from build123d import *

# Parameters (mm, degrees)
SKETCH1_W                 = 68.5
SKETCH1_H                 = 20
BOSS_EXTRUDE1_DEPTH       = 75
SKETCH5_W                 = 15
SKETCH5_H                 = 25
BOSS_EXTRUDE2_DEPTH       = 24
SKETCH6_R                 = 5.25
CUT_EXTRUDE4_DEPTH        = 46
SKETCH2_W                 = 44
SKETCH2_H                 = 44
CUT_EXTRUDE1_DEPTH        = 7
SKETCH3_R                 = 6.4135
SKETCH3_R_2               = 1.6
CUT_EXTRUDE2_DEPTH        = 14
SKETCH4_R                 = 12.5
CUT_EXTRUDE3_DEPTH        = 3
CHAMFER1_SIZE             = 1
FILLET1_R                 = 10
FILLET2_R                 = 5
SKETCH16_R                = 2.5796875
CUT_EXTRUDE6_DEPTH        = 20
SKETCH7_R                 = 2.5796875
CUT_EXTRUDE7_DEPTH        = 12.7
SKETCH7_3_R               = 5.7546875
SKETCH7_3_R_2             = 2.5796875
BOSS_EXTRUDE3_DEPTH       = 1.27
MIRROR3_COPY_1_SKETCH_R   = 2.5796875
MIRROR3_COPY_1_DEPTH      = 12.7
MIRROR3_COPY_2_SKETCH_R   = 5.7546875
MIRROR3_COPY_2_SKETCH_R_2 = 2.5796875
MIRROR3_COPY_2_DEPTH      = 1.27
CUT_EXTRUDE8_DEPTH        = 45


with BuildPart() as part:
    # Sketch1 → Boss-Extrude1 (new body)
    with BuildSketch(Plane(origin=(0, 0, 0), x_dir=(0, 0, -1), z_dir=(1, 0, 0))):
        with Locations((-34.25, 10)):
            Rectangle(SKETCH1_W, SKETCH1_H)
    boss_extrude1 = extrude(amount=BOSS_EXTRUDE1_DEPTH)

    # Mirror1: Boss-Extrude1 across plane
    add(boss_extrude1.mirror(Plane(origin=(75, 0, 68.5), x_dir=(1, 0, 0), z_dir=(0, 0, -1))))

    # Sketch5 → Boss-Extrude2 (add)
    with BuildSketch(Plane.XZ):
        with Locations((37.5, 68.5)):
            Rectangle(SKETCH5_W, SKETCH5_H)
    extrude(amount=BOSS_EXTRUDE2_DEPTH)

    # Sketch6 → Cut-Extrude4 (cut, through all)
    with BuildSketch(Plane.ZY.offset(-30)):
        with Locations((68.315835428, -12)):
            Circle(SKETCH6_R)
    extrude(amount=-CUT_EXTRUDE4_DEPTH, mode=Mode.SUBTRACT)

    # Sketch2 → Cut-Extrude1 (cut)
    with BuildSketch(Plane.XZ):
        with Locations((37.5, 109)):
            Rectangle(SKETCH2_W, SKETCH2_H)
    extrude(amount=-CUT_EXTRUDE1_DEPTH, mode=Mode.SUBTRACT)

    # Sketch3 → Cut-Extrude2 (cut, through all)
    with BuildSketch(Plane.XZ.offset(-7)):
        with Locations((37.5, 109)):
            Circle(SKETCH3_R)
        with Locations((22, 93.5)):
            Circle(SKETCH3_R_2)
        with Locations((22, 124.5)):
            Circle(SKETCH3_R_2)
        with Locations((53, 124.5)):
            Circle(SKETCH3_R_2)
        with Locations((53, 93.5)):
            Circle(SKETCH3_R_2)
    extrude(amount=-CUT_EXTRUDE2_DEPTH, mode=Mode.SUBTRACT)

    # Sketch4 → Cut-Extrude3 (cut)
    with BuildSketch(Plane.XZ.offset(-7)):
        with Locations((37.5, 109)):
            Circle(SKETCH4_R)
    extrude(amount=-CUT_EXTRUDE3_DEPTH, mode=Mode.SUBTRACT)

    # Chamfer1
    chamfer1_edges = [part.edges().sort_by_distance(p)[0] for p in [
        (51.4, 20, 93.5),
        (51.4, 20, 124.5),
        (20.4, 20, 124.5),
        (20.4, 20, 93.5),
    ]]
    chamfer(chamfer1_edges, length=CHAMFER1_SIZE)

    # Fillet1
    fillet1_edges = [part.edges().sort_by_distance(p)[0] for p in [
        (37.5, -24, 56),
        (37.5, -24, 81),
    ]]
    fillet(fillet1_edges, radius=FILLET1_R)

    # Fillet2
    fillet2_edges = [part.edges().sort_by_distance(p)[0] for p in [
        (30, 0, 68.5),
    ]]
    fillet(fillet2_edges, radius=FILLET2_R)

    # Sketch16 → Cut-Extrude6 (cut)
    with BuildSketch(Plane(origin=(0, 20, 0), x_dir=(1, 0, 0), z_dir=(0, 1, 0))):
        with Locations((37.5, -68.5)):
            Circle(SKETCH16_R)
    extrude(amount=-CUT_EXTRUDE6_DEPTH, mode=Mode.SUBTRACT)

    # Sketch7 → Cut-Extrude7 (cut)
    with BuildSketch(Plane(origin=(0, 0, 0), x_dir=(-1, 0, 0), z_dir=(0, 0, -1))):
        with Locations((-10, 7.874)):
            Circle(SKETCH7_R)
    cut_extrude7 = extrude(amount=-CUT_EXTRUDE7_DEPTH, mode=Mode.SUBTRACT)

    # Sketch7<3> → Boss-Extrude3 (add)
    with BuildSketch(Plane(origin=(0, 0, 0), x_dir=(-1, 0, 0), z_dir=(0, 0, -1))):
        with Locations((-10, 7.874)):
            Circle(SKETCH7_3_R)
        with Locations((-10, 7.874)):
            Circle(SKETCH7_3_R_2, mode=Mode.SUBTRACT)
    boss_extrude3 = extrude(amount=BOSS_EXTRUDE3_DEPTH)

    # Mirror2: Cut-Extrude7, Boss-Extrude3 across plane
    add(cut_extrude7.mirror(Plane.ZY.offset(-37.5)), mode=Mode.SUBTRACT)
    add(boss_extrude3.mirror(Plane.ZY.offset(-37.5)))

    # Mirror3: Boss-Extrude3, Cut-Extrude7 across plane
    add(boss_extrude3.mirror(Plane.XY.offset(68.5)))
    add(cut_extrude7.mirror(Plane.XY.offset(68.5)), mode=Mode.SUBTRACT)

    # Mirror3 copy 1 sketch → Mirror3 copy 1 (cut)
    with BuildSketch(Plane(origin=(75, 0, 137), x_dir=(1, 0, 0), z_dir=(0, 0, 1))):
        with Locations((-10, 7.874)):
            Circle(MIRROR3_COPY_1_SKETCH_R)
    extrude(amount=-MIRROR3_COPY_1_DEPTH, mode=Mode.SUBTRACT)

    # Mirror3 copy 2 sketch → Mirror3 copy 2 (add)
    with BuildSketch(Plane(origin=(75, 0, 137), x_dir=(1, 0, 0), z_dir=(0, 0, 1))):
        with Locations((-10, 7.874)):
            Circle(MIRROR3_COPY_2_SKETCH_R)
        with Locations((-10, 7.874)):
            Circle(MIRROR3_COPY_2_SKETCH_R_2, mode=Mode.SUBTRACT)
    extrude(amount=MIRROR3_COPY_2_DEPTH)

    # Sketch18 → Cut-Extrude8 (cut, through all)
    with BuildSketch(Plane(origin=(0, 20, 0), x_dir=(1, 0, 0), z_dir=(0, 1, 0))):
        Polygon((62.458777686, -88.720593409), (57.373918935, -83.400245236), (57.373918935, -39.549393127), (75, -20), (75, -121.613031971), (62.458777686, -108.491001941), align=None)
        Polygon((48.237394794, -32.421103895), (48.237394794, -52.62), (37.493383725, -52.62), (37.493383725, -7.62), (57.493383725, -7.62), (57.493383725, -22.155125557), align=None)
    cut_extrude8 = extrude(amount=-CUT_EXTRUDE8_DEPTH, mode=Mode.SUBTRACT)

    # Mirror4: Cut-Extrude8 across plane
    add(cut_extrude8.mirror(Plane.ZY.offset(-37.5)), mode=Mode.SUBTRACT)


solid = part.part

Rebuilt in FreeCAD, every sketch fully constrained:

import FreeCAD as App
import Part
import Sketcher


def edges_at(feature, points):
    """Names of the edges that pass closest to the given points."""
    edges = feature.Shape.Edges
    near = lambda p: min(range(len(edges)), key=lambda i: edges[i].distToShape(Part.Vertex(*p))[0])
    return sorted({f"Edge{near(p) + 1}" for p in points})

doc = App.newDocument("Part")
body = doc.addObject("PartDesign::Body", "Body")

# Sketch on YZ plane
sketch1 = body.newObject("Sketcher::SketchObject", "Sketch")
sketch1.AttachmentSupport = (doc.getObject("YZ_Plane"), [""])
sketch1.MapMode = "FlatFace"
sketch1.addGeometry(Part.LineSegment(App.Vector(20, 68, 0), App.Vector(0, 68, 0)), False)
sketch1.addGeometry(Part.LineSegment(App.Vector(0, 68, 0), App.Vector(0, 0, 0)), False)
sketch1.addGeometry(Part.LineSegment(App.Vector(0, 0, 0), App.Vector(20, 0, 0)), False)
sketch1.addGeometry(Part.LineSegment(App.Vector(20, 0, 0), App.Vector(20, 68, 0)), False)
sketch1.addConstraint(Sketcher.Constraint("Coincident", 0, 2, 1, 1))
sketch1.addConstraint(Sketcher.Constraint("Coincident", 1, 2, 2, 1))
sketch1.addConstraint(Sketcher.Constraint("Coincident", 2, 2, 3, 1))
sketch1.addConstraint(Sketcher.Constraint("Coincident", 3, 2, 0, 1))
sketch1.addConstraint(Sketcher.Constraint("Horizontal", 0))
sketch1.addConstraint(Sketcher.Constraint("Vertical", 1))
sketch1.addConstraint(Sketcher.Constraint("Horizontal", 2))
sketch1.addConstraint(Sketcher.Constraint("Vertical", 3))
sketch1.addConstraint(Sketcher.Constraint("Coincident", 1, 2, -1, 1))
sketch1.addConstraint(Sketcher.Constraint("DistanceX", 0, 2, 0, 1, 20.0))
sketch1.addConstraint(Sketcher.Constraint("DistanceY", 1, 2, 1, 1, 68.5))
pad1 = body.newObject("PartDesign::Pad", "Pad")
pad1.Profile = sketch1
pad1.Length = 75
doc.recompute()

datumplane = body.newObject("PartDesign::Plane", "DatumPlane")
datumplane.AttachmentSupport = (doc.getObject("XY_Plane"), [""])
datumplane.MapMode = "FlatFace"
datumplane.AttachmentOffset = App.Placement(App.Vector(0, 0, 68.5), App.Rotation())
mirrored = body.newObject("PartDesign::Mirrored", "Mirrored")
mirrored.Originals = [pad1]
mirrored.MirrorPlane = (datumplane, [""])
body.Tip = mirrored

# Sketch on XZ plane
sketch2 = body.newObject("Sketcher::SketchObject", "Sketch001")
sketch2.AttachmentSupport = (doc.getObject("XZ_Plane"), [""])
sketch2.MapMode = "FlatFace"
sketch2.addGeometry(Part.LineSegment(App.Vector(30, 81, 0), App.Vector(30, 56, 0)), False)
sketch2.addGeometry(Part.LineSegment(App.Vector(30, 56, 0), App.Vector(45, 56, 0)), False)
sketch2.addGeometry(Part.LineSegment(App.Vector(45, 56, 0), App.Vector(45, 81, 0)), False)
sketch2.addGeometry(Part.LineSegment(App.Vector(45, 81, 0), App.Vector(30, 81, 0)), False)
sketch2.addConstraint(Sketcher.Constraint("Coincident", 0, 2, 1, 1))
sketch2.addConstraint(Sketcher.Constraint("Coincident", 1, 2, 2, 1))
sketch2.addConstraint(Sketcher.Constraint("Coincident", 2, 2, 3, 1))
sketch2.addConstraint(Sketcher.Constraint("Coincident", 3, 2, 0, 1))
sketch2.addConstraint(Sketcher.Constraint("Vertical", 0))
sketch2.addConstraint(Sketcher.Constraint("Horizontal", 1))
sketch2.addConstraint(Sketcher.Constraint("Vertical", 2))
sketch2.addConstraint(Sketcher.Constraint("Horizontal", 3))
sketch2.addConstraint(Sketcher.Constraint("DistanceX", 1, 1, 1, 2, 15.0))
sketch2.addConstraint(Sketcher.Constraint("DistanceY", 0, 2, 0, 1, 25.0))
sketch2.addConstraint(Sketcher.Constraint("DistanceX", -1, 1, 0, 2, 30.0))
sketch2.addConstraint(Sketcher.Constraint("DistanceY", -1, 1, 0, 2, 56.0))
pad2 = body.newObject("PartDesign::Pad", "Pad001")
pad2.Profile = sketch2
pad2.Length = 24

# Sketch on YZ plane
sketch3 = body.newObject("Sketcher::SketchObject", "Sketch002")
sketch3.AttachmentSupport = (doc.getObject("YZ_Plane"), [""])
sketch3.MapMode = "FlatFace"
sketch3.AttachmentOffset = App.Placement(App.Vector(0, 0, 30), App.Rotation())
sketch3.addGeometry(Part.Circle(App.Vector(-12, 68, 0), App.Vector(0, 0, 1), 5), False)
sketch3.addConstraint(Sketcher.Constraint("Diameter", 0, 10.5))
sketch3.addConstraint(Sketcher.Constraint("DistanceX", 0, 3, -1, 1, 12.0))
sketch3.addConstraint(Sketcher.Constraint("DistanceY", -1, 1, 0, 3, 68.315835))
pocket1 = body.newObject("PartDesign::Pocket", "Pocket")
pocket1.Profile = sketch3
pocket1.Type = "ThroughAll"
pocket1.Reversed = True

# Sketch on XZ plane
sketch4 = body.newObject("Sketcher::SketchObject", "Sketch003")
sketch4.AttachmentSupport = (doc.getObject("XZ_Plane"), [""])
sketch4.MapMode = "FlatFace"
sketch4.addGeometry(Part.LineSegment(App.Vector(16, 131, 0), App.Vector(16, 87, 0)), False)
sketch4.addGeometry(Part.LineSegment(App.Vector(16, 87, 0), App.Vector(60, 87, 0)), False)
sketch4.addGeometry(Part.LineSegment(App.Vector(60, 87, 0), App.Vector(60, 131, 0)), False)
sketch4.addGeometry(Part.LineSegment(App.Vector(60, 131, 0), App.Vector(16, 131, 0)), False)
sketch4.addConstraint(Sketcher.Constraint("Coincident", 0, 2, 1, 1))
sketch4.addConstraint(Sketcher.Constraint("Coincident", 1, 2, 2, 1))
sketch4.addConstraint(Sketcher.Constraint("Coincident", 2, 2, 3, 1))
sketch4.addConstraint(Sketcher.Constraint("Coincident", 3, 2, 0, 1))
sketch4.addConstraint(Sketcher.Constraint("Vertical", 0))
sketch4.addConstraint(Sketcher.Constraint("Horizontal", 1))
sketch4.addConstraint(Sketcher.Constraint("Vertical", 2))
sketch4.addConstraint(Sketcher.Constraint("Horizontal", 3))
sketch4.addConstraint(Sketcher.Constraint("Equal", 3, 0))
sketch4.addConstraint(Sketcher.Constraint("DistanceX", 1, 1, 1, 2, 44.0))
sketch4.addConstraint(Sketcher.Constraint("DistanceY", -1, 1, 0, 2, 87.0))
sketch4.addConstraint(Sketcher.Constraint("DistanceX", -1, 1, 0, 2, 15.5))
pocket2 = body.newObject("PartDesign::Pocket", "Pocket001")
pocket2.Profile = sketch4
pocket2.Length = 7

# Sketch on XZ plane
sketch5 = body.newObject("Sketcher::SketchObject", "Sketch004")
sketch5.AttachmentSupport = (doc.getObject("XZ_Plane"), [""])
sketch5.MapMode = "FlatFace"
sketch5.AttachmentOffset = App.Placement(App.Vector(0, 0, -7), App.Rotation())
sketch5.addGeometry(Part.Circle(App.Vector(37.5, 109, 0), App.Vector(0, 0, 1), 6.4), False)
sketch5.addGeometry(Part.Circle(App.Vector(22, 93.5, 0), App.Vector(0, 0, 1), 1.6), False)
sketch5.addGeometry(Part.Circle(App.Vector(22, 124.5, 0), App.Vector(0, 0, 1), 1.6), False)
sketch5.addGeometry(Part.Circle(App.Vector(53, 124.5, 0), App.Vector(0, 0, 1), 1.6), False)
sketch5.addGeometry(Part.Circle(App.Vector(53, 93.5, 0), App.Vector(0, 0, 1), 1.6), False)
sketch5.addConstraint(Sketcher.Constraint("Equal", 1, 2))
sketch5.addConstraint(Sketcher.Constraint("Equal", 2, 3))
sketch5.addConstraint(Sketcher.Constraint("Equal", 3, 4))
sketch5.addConstraint(Sketcher.Constraint("Horizontal", 2, 3, 3, 3))
sketch5.addConstraint(Sketcher.Constraint("Horizontal", 1, 3, 4, 3))
sketch5.addConstraint(Sketcher.Constraint("Vertical", 1, 3, 2, 3))
sketch5.addConstraint(Sketcher.Constraint("Vertical", 3, 3, 4, 3))
sketch5.addConstraint(Sketcher.Constraint("Diameter", 1, 3.2))
sketch5.addConstraint(Sketcher.Constraint("Diameter", 0, 12.827))
sketch5.addConstraint(Sketcher.Constraint("DistanceY", -1, 1, 0, 3, 109.0))
sketch5.addConstraint(Sketcher.Constraint("DistanceX", -1, 1, 1, 3, 22.0))
sketch5.addConstraint(Sketcher.Constraint("DistanceX", -1, 1, 3, 3, 53.0))
sketch5.addConstraint(Sketcher.Constraint("DistanceY", 1, 3, 2, 3, 31.0))
sketch5.addConstraint(Sketcher.Constraint("DistanceX", -1, 1, 0, 3, 37.5))
sketch5.addConstraint(Sketcher.Constraint("DistanceY", -1, 1, 1, 3, 93.5))
pocket3 = body.newObject("PartDesign::Pocket", "Pocket002")
pocket3.Profile = sketch5
pocket3.Type = "ThroughAll"

# Sketch on XZ plane
sketch6 = body.newObject("Sketcher::SketchObject", "Sketch005")
sketch6.AttachmentSupport = (doc.getObject("XZ_Plane"), [""])
sketch6.MapMode = "FlatFace"
sketch6.AttachmentOffset = App.Placement(App.Vector(0, 0, -7), App.Rotation())
sketch6.addGeometry(Part.Circle(App.Vector(38, 109, 0), App.Vector(0, 0, 1), 12), False)
sketch6.addConstraint(Sketcher.Constraint("Diameter", 0, 25.0))
sketch6.addConstraint(Sketcher.Constraint("DistanceY", -1, 1, 0, 3, 109.0))
sketch6.addConstraint(Sketcher.Constraint("DistanceX", -1, 1, 0, 3, 37.5))
pocket4 = body.newObject("PartDesign::Pocket", "Pocket003")
pocket4.Profile = sketch6
pocket4.Length = 3
doc.recompute()

chamfer = body.newObject("PartDesign::Chamfer", "Chamfer")
chamfer.Base = (pocket4, edges_at(pocket4, [
    (51.4, 20, 93.5),
    (51.4, 20, 124.5),
    (20.4, 20, 124.5),
    (20.4, 20, 93.5),
]))
chamfer.Size = 1
doc.recompute()

fillet = body.newObject("PartDesign::Fillet", "Fillet")
fillet.Base = (chamfer, edges_at(chamfer, [(37.5, -24, 56), (37.5, -24, 81)]))
fillet.Radius = 10
doc.recompute()

fillet2 = body.newObject("PartDesign::Fillet", "Fillet001")
fillet2.Base = (fillet, edges_at(fillet, [(30, 0, 68.5)]))
fillet2.Radius = 5

# Sketch on XZ plane
sketch7 = body.newObject("Sketcher::SketchObject", "Sketch006")
sketch7.AttachmentSupport = (doc.getObject("XZ_Plane"), [""])
sketch7.MapMode = "FlatFace"
sketch7.AttachmentOffset = App.Placement(App.Vector(0, 0, -20), App.Rotation())
sketch7.addGeometry(Part.Circle(App.Vector(37.5, 68.5, 0), App.Vector(0, 0, 1), 2.6), False)
sketch7.addConstraint(Sketcher.Constraint("DistanceX", -1, 1, 0, 3, 37.5))
sketch7.addConstraint(Sketcher.Constraint("DistanceY", -1, 1, 0, 3, 68.5))
sketch7.addConstraint(Sketcher.Constraint("Diameter", 0, 5.159375))
pocket5 = body.newObject("PartDesign::Pocket", "Pocket004")
pocket5.Profile = sketch7
pocket5.Length = 20
pocket5.Reversed = True

# Sketch on XY plane
sketch8 = body.newObject("Sketcher::SketchObject", "Sketch007")
sketch8.AttachmentSupport = (doc.getObject("XY_Plane"), [""])
sketch8.MapMode = "FlatFace"
sketch8.addGeometry(Part.Circle(App.Vector(10, 7.9, 0), App.Vector(0, 0, 1), 2.6), False)
sketch8.addConstraint(Sketcher.Constraint("DistanceX", -1, 1, 0, 3, 10.0))
sketch8.addConstraint(Sketcher.Constraint("Diameter", 0, 5.159375))
sketch8.addConstraint(Sketcher.Constraint("DistanceY", -1, 1, 0, 3, 7.874))
pocket6 = body.newObject("PartDesign::Pocket", "Pocket005")
pocket6.Profile = sketch8
pocket6.Length = 12.7
pocket6.Reversed = True

# Sketch on XY plane
sketch9 = body.newObject("Sketcher::SketchObject", "Sketch008")
sketch9.AttachmentSupport = (doc.getObject("XY_Plane"), [""])
sketch9.MapMode = "FlatFace"
sketch9.addGeometry(Part.Circle(App.Vector(10, 7.9, 0), App.Vector(0, 0, 1), 5.8), False)
sketch9.addGeometry(Part.Circle(App.Vector(10, 7.9, 0), App.Vector(0, 0, 1), 2.6), False)
sketch9.addConstraint(Sketcher.Constraint("Coincident", 1, 3, 0, 3))
sketch9.addConstraint(Sketcher.Constraint("DistanceX", -1, 1, 0, 3, 10.0))
sketch9.addConstraint(Sketcher.Constraint("Diameter", 0, 11.509375))
sketch9.addConstraint(Sketcher.Constraint("Diameter", 1, 5.159375))
sketch9.addConstraint(Sketcher.Constraint("DistanceY", -1, 1, 0, 3, 7.874))
pad3 = body.newObject("PartDesign::Pad", "Pad002")
pad3.Profile = sketch9
pad3.Length = 1.27
pad3.Reversed = True
doc.recompute()

datumplane2 = body.newObject("PartDesign::Plane", "DatumPlane001")
datumplane2.AttachmentSupport = (doc.getObject("YZ_Plane"), [""])
datumplane2.MapMode = "FlatFace"
datumplane2.AttachmentOffset = App.Placement(App.Vector(0, 0, 37.5), App.Rotation())
mirrored2 = body.newObject("PartDesign::Mirrored", "Mirrored001")
mirrored2.Originals = [pocket6, pad3]
mirrored2.MirrorPlane = (datumplane2, [""])
body.Tip = mirrored2
doc.recompute()

datumplane3 = body.newObject("PartDesign::Plane", "DatumPlane002")
datumplane3.AttachmentSupport = (doc.getObject("XY_Plane"), [""])
datumplane3.MapMode = "FlatFace"
datumplane3.AttachmentOffset = App.Placement(App.Vector(0, 0, 68.5), App.Rotation())
mirrored3 = body.newObject("PartDesign::Mirrored", "Mirrored002")
mirrored3.Originals = [pad3, pocket6]
mirrored3.MirrorPlane = (datumplane3, [""])
body.Tip = mirrored3

# Sketch on XY plane
sketch10 = body.newObject("Sketcher::SketchObject", "Sketch009")
sketch10.AttachmentSupport = (doc.getObject("XY_Plane"), [""])
sketch10.MapMode = "FlatFace"
sketch10.AttachmentOffset = App.Placement(App.Vector(0, 0, 137), App.Rotation())
sketch10.addGeometry(Part.Circle(App.Vector(65, 7.9, 0), App.Vector(0, 0, 1), 2.6), False)
sketch10.addConstraint(Sketcher.Constraint("DistanceX", -1, 1, 0, 3, 65.0))
sketch10.addConstraint(Sketcher.Constraint("Diameter", 0, 5.159375))
sketch10.addConstraint(Sketcher.Constraint("DistanceY", -1, 1, 0, 3, 7.874))
pocket7 = body.newObject("PartDesign::Pocket", "Pocket006")
pocket7.Profile = sketch10
pocket7.Length = 12.7

# Sketch on XY plane
sketch11 = body.newObject("Sketcher::SketchObject", "Sketch010")
sketch11.AttachmentSupport = (doc.getObject("XY_Plane"), [""])
sketch11.MapMode = "FlatFace"
sketch11.AttachmentOffset = App.Placement(App.Vector(0, 0, 137), App.Rotation())
sketch11.addGeometry(Part.Circle(App.Vector(65, 7.9, 0), App.Vector(0, 0, 1), 5.8), False)
sketch11.addGeometry(Part.Circle(App.Vector(65, 7.9, 0), App.Vector(0, 0, 1), 2.6), False)
sketch11.addConstraint(Sketcher.Constraint("Coincident", 1, 3, 0, 3))
sketch11.addConstraint(Sketcher.Constraint("DistanceX", -1, 1, 0, 3, 65.0))
sketch11.addConstraint(Sketcher.Constraint("Diameter", 0, 11.509375))
sketch11.addConstraint(Sketcher.Constraint("Diameter", 1, 5.159375))
sketch11.addConstraint(Sketcher.Constraint("DistanceY", -1, 1, 0, 3, 7.874))
pad4 = body.newObject("PartDesign::Pad", "Pad003")
pad4.Profile = sketch11
pad4.Length = 1.27

# Sketch on XZ plane
sketch12 = body.newObject("Sketcher::SketchObject", "Sketch011")
sketch12.AttachmentSupport = (doc.getObject("XZ_Plane"), [""])
sketch12.MapMode = "FlatFace"
sketch12.AttachmentOffset = App.Placement(App.Vector(0, 0, -20), App.Rotation())
sketch12.addGeometry(Part.LineSegment(App.Vector(57, 83, 0), App.Vector(62, 89, 0)), False)
sketch12.addGeometry(Part.LineSegment(App.Vector(62, 89, 0), App.Vector(62, 108, 0)), False)
sketch12.addGeometry(Part.LineSegment(App.Vector(62, 108, 0), App.Vector(75, 122, 0)), False)
sketch12.addGeometry(Part.LineSegment(App.Vector(75, 122, 0), App.Vector(75, 20, 0)), False)
sketch12.addGeometry(Part.LineSegment(App.Vector(75, 20, 0), App.Vector(57, 40, 0)), False)
sketch12.addGeometry(Part.LineSegment(App.Vector(57, 40, 0), App.Vector(57, 83, 0)), False)
sketch12.addGeometry(Part.LineSegment(App.Vector(48, 53, 0), App.Vector(48, 32, 0)), False)
sketch12.addGeometry(Part.LineSegment(App.Vector(48, 32, 0), App.Vector(57, 22, 0)), False)
sketch12.addGeometry(Part.LineSegment(App.Vector(57, 22, 0), App.Vector(57, 8, 0)), False)
sketch12.addGeometry(Part.LineSegment(App.Vector(57, 8, 0), App.Vector(37, 8, 0)), False)
sketch12.addGeometry(Part.LineSegment(App.Vector(37, 8, 0), App.Vector(37, 53, 0)), False)
sketch12.addGeometry(Part.LineSegment(App.Vector(37, 53, 0), App.Vector(48, 53, 0)), False)
sketch12.addConstraint(Sketcher.Constraint("Coincident", 0, 2, 1, 1))
sketch12.addConstraint(Sketcher.Constraint("Coincident", 1, 2, 2, 1))
sketch12.addConstraint(Sketcher.Constraint("Coincident", 2, 2, 3, 1))
sketch12.addConstraint(Sketcher.Constraint("Coincident", 3, 2, 4, 1))
sketch12.addConstraint(Sketcher.Constraint("Coincident", 4, 2, 5, 1))
sketch12.addConstraint(Sketcher.Constraint("Coincident", 5, 2, 0, 1))
sketch12.addConstraint(Sketcher.Constraint("Coincident", 6, 2, 7, 1))
sketch12.addConstraint(Sketcher.Constraint("Coincident", 7, 2, 8, 1))
sketch12.addConstraint(Sketcher.Constraint("Coincident", 8, 2, 9, 1))
sketch12.addConstraint(Sketcher.Constraint("Coincident", 9, 2, 10, 1))
sketch12.addConstraint(Sketcher.Constraint("Coincident", 10, 2, 11, 1))
sketch12.addConstraint(Sketcher.Constraint("Coincident", 11, 2, 6, 1))
sketch12.addConstraint(Sketcher.Constraint("Vertical", 1))
sketch12.addConstraint(Sketcher.Constraint("Vertical", 3))
sketch12.addConstraint(Sketcher.Constraint("Vertical", 5))
sketch12.addConstraint(Sketcher.Constraint("Vertical", 6))
sketch12.addConstraint(Sketcher.Constraint("Vertical", 8))
sketch12.addConstraint(Sketcher.Constraint("Horizontal", 9))
sketch12.addConstraint(Sketcher.Constraint("Vertical", 10))
sketch12.addConstraint(Sketcher.Constraint("Horizontal", 11))
sketch12.addConstraint(Sketcher.Constraint("Parallel", 0, 2))
sketch12.addConstraint(Sketcher.Constraint("Parallel", 4, 7))
sketch12.addConstraint(Sketcher.Constraint("DistanceX", 9, 2, 9, 1, 20.0))
sketch12.addConstraint(Sketcher.Constraint("DistanceY", 10, 1, 10, 2, 45.0))
sketch12.addConstraint(Sketcher.Constraint("DistanceX", -1, 1, 2, 2, 75.0))
sketch12.addConstraint(Sketcher.Constraint("DistanceY", -1, 1, 3, 2, 20.0))
sketch12.addConstraint(Sketcher.Constraint("DistanceY", -1, 1, 8, 2, 7.62))
sketch12.addConstraint(Sketcher.Constraint("DistanceY", -1, 1, 1, 2, 108.491002))
sketch12.addConstraint(Sketcher.Constraint("DistanceX", 11, 1, 11, 2, 10.744011))
sketch12.addConstraint(Sketcher.Constraint("DistanceY", 1, 1, 1, 2, 19.770409))
sketch12.addConstraint(Sketcher.Constraint("DistanceY", 3, 2, 3, 1, 101.613032))
sketch12.addConstraint(Sketcher.Constraint("DistanceY", 4, 2, 0, 2, 49.1712))
sketch12.addConstraint(Sketcher.Constraint("DistanceY", 6, 2, 1, 2, 76.069898))
sketch12.addConstraint(Sketcher.Constraint("DistanceY", 5, 1, 5, 2, 43.850852))
sketch12.addConstraint(Sketcher.Constraint("DistanceY", 8, 2, 8, 1, 14.535126))
sketch12.addConstraint(Sketcher.Constraint("DistanceX", -1, 1, 6, 2, 48.237395))
pocket8 = body.newObject("PartDesign::Pocket", "Pocket007")
pocket8.Profile = sketch12
pocket8.Type = "ThroughAll"
pocket8.Reversed = True
doc.recompute()

datumplane4 = body.newObject("PartDesign::Plane", "DatumPlane003")
datumplane4.AttachmentSupport = (doc.getObject("YZ_Plane"), [""])
datumplane4.MapMode = "FlatFace"
datumplane4.AttachmentOffset = App.Placement(App.Vector(0, 0, 37.5), App.Rotation())
mirrored4 = body.newObject("PartDesign::Mirrored", "Mirrored003")
mirrored4.Originals = [pocket8]
mirrored4.MirrorPlane = (datumplane4, [""])
body.Tip = mirrored4

doc.recompute()
